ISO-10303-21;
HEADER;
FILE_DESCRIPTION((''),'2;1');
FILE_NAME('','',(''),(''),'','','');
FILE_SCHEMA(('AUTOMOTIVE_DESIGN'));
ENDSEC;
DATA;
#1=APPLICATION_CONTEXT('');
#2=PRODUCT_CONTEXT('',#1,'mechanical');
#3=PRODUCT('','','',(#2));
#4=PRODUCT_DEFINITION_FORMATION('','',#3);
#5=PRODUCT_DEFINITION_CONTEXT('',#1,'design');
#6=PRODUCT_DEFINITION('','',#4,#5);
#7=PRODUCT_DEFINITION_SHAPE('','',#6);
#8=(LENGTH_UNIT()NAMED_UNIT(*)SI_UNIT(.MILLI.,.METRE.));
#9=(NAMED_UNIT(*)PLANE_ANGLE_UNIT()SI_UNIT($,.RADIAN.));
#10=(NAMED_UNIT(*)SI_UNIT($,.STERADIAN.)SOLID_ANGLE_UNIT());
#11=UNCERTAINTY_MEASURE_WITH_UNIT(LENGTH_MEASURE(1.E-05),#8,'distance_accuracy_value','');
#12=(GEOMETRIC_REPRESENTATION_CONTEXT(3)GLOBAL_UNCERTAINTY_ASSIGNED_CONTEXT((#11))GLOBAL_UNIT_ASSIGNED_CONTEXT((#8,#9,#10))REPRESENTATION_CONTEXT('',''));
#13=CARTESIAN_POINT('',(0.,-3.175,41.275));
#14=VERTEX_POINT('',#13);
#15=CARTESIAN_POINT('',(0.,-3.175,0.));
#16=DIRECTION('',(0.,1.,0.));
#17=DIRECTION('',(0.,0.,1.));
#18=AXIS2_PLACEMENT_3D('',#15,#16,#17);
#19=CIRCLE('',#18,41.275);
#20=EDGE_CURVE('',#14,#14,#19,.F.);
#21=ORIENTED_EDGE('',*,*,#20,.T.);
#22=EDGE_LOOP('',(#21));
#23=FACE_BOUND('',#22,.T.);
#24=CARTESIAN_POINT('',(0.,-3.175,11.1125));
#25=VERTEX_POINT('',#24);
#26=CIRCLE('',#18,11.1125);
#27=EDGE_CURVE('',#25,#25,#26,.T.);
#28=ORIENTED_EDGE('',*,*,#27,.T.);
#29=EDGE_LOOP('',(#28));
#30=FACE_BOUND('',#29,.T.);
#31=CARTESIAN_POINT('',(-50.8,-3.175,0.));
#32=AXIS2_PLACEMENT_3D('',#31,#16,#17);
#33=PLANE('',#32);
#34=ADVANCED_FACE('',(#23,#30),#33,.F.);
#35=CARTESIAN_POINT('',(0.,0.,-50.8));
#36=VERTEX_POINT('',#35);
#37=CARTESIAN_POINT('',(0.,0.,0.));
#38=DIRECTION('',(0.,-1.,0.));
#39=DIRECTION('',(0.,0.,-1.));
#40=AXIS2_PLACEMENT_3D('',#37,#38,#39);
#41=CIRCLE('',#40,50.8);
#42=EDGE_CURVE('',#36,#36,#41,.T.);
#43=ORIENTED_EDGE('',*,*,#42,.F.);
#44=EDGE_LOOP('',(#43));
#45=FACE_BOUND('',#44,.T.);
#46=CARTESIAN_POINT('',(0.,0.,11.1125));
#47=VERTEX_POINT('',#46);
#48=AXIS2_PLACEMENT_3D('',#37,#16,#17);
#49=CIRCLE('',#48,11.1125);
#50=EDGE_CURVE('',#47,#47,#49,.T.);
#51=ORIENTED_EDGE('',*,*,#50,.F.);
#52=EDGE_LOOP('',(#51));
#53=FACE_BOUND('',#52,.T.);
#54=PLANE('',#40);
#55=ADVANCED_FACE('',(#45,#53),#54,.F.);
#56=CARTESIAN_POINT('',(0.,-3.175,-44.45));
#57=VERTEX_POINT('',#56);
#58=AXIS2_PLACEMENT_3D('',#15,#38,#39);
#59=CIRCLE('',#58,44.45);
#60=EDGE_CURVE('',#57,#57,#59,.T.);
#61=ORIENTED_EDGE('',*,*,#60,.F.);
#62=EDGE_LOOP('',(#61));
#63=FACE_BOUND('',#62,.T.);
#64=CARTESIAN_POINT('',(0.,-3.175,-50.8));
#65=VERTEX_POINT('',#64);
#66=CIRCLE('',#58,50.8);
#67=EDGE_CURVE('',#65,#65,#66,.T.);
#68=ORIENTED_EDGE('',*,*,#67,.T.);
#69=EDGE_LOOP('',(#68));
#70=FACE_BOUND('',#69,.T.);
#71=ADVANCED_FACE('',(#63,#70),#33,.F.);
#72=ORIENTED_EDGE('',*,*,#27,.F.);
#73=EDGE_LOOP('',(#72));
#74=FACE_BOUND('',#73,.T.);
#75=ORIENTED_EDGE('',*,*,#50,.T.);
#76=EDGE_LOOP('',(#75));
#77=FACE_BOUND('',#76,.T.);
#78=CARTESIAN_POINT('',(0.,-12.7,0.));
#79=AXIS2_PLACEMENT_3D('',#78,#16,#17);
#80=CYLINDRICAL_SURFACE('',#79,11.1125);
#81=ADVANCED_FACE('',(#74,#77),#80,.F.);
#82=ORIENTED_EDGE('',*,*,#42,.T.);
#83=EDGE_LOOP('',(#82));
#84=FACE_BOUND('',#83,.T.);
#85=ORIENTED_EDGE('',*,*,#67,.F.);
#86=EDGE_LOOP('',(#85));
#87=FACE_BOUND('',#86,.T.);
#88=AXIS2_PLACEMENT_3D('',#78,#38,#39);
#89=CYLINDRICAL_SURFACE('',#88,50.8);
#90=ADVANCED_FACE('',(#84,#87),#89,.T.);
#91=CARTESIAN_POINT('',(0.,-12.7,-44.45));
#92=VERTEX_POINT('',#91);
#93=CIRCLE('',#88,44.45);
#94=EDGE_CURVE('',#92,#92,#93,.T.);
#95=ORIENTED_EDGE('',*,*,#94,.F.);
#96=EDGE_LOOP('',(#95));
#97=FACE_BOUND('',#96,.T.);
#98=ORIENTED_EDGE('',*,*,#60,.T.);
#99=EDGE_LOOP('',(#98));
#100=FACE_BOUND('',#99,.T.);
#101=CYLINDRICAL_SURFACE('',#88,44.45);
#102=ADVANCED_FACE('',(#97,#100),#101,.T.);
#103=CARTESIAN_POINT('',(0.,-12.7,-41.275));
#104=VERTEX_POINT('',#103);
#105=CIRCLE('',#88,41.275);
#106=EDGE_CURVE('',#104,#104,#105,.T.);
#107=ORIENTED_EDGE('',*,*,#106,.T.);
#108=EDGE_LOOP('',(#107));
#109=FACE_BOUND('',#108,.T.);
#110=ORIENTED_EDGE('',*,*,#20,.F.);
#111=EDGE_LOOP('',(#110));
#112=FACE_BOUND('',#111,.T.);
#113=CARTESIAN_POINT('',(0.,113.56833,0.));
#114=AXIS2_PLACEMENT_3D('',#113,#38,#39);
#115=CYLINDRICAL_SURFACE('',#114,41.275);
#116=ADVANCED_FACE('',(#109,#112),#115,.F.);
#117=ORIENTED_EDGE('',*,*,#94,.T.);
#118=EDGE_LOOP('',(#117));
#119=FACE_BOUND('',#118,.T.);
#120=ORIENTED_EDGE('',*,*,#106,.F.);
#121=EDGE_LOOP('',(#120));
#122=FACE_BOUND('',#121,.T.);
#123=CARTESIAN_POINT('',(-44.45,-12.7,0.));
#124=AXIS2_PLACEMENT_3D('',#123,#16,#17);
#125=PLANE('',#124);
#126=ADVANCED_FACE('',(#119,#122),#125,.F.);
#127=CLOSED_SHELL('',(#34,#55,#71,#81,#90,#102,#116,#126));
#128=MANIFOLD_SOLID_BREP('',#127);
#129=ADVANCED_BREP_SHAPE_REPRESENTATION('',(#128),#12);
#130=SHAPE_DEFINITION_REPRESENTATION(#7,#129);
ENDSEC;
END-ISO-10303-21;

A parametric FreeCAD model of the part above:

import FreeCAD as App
import Part
import Sketcher

V = App.Vector
Q = App.Units.Quantity

doc = App.newDocument("Part")
params = doc.addObject("Spreadsheet::Sheet", "Params")
for row, (alias, value) in enumerate([
    ("sketch1_width", "2 in"),
    ("sketch1_height", "0.5 in"),
    ("sketch1_width2", "0.25 in"),
    ("sketch1_height2", "0.125 in"),
    ("revolution_angle", "360 deg"),
    ("sketch2_diameter", "3.25 in"),
    ("pocket1_length", "0.375 in"),
    ("sketch3_diameter", "0.875 in"),
], start=1):
    params.set(f"A{row}", alias)
    params.set(f"B{row}", "=" + value)
    params.setAlias(f"B{row}", alias)

body = doc.addObject("PartDesign::Body", "Body")

# Sketch on XY plane
sketch1 = doc.addObject("Sketcher::SketchObject", "Sketch")
body.addObject(sketch1)
sketch1.AttachmentSupport = (doc.XY_Plane, [""])
sketch1.MapMode = "FlatFace"
sketch1.addGeometry([
    Part.LineSegment(V(0, 0, 0), V(-50.8, 0, 0)),  # 0
    Part.LineSegment(V(-50.8, 0, 0), V(-50.8, -3.175, 0)),  # 1
    Part.LineSegment(V(-50.8, -3.175, 0), V(-44.45, -3.175, 0)),  # 2
    Part.LineSegment(V(-44.45, -3.175, 0), V(-44.45, -12.7, 0)),  # 3
    Part.LineSegment(V(-44.45, -12.7, 0), V(0, -12.7, 0)),  # 4
    Part.LineSegment(V(0, -12.7, 0), V(0, 0, 0)),  # 5
], False)
sketch1.addConstraint([
    Sketcher.Constraint("Coincident", 0, 2, 1, 1),
    Sketcher.Constraint("Coincident", 1, 2, 2, 1),
    Sketcher.Constraint("Coincident", 2, 2, 3, 1),
    Sketcher.Constraint("Coincident", 3, 2, 4, 1),
    Sketcher.Constraint("Coincident", 4, 2, 5, 1),
    Sketcher.Constraint("Coincident", 5, 2, 0, 1),
    Sketcher.Constraint("Horizontal", 0),
    Sketcher.Constraint("Vertical", 1),
    Sketcher.Constraint("Horizontal", 2),
    Sketcher.Constraint("Vertical", 3),
    Sketcher.Constraint("Horizontal", 4),
    Sketcher.Constraint("Vertical", 5),
    Sketcher.Constraint("Coincident", 5, 2, -1, 1),
    Sketcher.Constraint("DistanceX", 0, 2, 0, 1, Q("2 in")),
    Sketcher.Constraint("DistanceY", 5, 1, 5, 2, Q("0.5 in")),
    Sketcher.Constraint("DistanceX", 2, 1, 2, 2, Q("0.25 in")),
    Sketcher.Constraint("DistanceY", 1, 2, 1, 1, Q("0.125 in")),
])
sketch1.setExpression("Constraints[13]", "Params.sketch1_width")
sketch1.setExpression("Constraints[14]", "Params.sketch1_height")
sketch1.setExpression("Constraints[15]", "Params.sketch1_width2")
sketch1.setExpression("Constraints[16]", "Params.sketch1_height2")
revolution = doc.addObject("PartDesign::Revolution", "Revolution")
body.addObject(revolution)
revolution.Profile = sketch1
revolution.ReferenceAxis = (sketch1, ["V_Axis"])
revolution.setExpression("Angle", "Params.revolution_angle")

# Sketch on XZ plane
sketch2 = doc.addObject("Sketcher::SketchObject", "Sketch001")
body.addObject(sketch2)
sketch2.AttachmentSupport = (doc.XZ_Plane, [""])
sketch2.MapMode = "FlatFace"
sketch2.AttachmentOffset = App.Placement(V(0, 0, 0.5 * 25.4), App.Rotation())
sketch2.addGeometry(Part.Circle(V(0, 0, 0), V(0, 0, 1), 41.275), False)
sketch2.addConstraint([
    Sketcher.Constraint("Coincident", 0, 3, -1, 1),
    Sketcher.Constraint("Diameter", 0, Q("3.25 in")),
])
sketch2.setExpression("Constraints[1]", "Params.sketch2_diameter")
pocket1 = doc.addObject("PartDesign::Pocket", "Pocket")
body.addObject(pocket1)
pocket1.Profile = sketch2
pocket1.setExpression("Length", "Params.pocket1_length")

# Sketch on XZ plane
sketch3 = doc.addObject("Sketcher::SketchObject", "Sketch002")
body.addObject(sketch3)
sketch3.AttachmentSupport = (doc.XZ_Plane, [""])
sketch3.MapMode = "FlatFace"
sketch3.addGeometry(Part.Circle(V(0, 0, 0), V(0, 0, 1), 11.1125), False)
sketch3.addConstraint([
    Sketcher.Constraint("Coincident", 0, 3, -1, 1),
    Sketcher.Constraint("Diameter", 0, Q("0.875 in")),
])
sketch3.setExpression("Constraints[1]", "Params.sketch3_diameter")
pocket2 = doc.addObject("PartDesign::Pocket", "Pocket001")
body.addObject(pocket2)
pocket2.Profile = sketch3
pocket2.Type = "ThroughAll"
pocket2.Reversed = True

doc.recompute()
